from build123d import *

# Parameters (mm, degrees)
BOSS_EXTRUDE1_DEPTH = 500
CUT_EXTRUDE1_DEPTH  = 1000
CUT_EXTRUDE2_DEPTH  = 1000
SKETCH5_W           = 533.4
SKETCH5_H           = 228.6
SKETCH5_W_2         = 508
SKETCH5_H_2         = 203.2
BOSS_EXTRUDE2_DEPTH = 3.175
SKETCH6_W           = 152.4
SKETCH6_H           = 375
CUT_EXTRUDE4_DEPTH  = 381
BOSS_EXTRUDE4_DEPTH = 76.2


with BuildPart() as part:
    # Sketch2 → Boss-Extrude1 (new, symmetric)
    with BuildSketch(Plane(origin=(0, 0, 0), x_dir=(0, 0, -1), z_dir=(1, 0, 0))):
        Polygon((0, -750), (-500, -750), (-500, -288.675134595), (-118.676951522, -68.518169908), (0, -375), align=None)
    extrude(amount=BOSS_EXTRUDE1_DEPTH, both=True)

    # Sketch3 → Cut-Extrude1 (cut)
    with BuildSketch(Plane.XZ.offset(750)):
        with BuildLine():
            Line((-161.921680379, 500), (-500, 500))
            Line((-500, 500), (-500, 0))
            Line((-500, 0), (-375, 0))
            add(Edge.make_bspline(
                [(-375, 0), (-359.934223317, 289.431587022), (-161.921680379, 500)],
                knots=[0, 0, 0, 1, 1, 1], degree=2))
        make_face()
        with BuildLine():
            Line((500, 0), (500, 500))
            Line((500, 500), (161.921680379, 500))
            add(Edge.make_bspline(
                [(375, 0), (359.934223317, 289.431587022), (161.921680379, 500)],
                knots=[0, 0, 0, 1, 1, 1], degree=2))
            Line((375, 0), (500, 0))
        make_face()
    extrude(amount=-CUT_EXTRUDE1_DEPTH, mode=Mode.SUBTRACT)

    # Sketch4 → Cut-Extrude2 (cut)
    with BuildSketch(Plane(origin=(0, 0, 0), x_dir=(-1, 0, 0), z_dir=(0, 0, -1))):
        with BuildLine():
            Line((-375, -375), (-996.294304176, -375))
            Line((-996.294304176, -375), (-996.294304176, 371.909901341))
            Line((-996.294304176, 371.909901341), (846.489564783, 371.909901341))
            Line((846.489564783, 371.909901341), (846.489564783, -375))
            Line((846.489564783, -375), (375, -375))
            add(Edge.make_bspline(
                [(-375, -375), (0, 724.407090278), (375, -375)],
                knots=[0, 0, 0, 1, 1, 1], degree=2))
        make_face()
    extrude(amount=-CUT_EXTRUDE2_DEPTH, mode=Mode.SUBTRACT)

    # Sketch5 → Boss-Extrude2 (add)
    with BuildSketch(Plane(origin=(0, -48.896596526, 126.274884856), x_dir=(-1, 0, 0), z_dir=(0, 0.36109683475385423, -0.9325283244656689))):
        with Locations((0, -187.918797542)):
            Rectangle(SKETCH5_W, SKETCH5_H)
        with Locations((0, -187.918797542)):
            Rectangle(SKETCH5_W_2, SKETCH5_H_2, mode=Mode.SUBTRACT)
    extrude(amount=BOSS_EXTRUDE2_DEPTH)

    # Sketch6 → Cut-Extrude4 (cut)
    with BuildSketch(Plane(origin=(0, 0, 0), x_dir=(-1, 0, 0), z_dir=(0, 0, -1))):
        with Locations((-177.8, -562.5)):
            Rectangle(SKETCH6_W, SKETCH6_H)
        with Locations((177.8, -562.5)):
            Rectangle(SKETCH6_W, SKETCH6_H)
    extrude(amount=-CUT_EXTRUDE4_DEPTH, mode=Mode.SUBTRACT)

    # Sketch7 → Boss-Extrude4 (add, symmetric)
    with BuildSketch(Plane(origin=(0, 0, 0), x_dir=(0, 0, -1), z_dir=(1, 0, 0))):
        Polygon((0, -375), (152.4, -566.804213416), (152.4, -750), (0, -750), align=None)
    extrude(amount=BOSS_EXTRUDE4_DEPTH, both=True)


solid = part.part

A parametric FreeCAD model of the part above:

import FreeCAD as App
import Part
import Sketcher
from FreeCAD import Vector
Q = App.Units.Quantity

doc = App.newDocument("Part")
body = doc.addObject("PartDesign::Body", "Body")

sketch1 = doc.addObject("Sketcher::SketchObject", "Sketch")
body.addObject(sketch1)
sketch1.AttachmentSupport = (doc.YZ_Plane, [""])
sketch1.MapMode = "FlatFace"
sketch1.addGeometry([
    Part.LineSegment(Vector(-750, 500, 0), Vector(-750, 0, 0)),
    Part.LineSegment(Vector(-750, 0, 0), Vector(-375, 0, 0)),
    Part.LineSegment(Vector(-375, 0, 0), Vector(-69, 119, 0)),
    Part.LineSegment(Vector(-69, 119, 0), Vector(-289, 500, 0)),
    Part.LineSegment(Vector(-289, 500, 0), Vector(-750, 500, 0)),
], False)
sketch1.addConstraint([
    Sketcher.Constraint("Coincident", 0, 2, 1, 1),
    Sketcher.Constraint("Coincident", 1, 2, 2, 1),
    Sketcher.Constraint("Coincident", 2, 2, 3, 1),
    Sketcher.Constraint("Coincident", 3, 2, 4, 1),
    Sketcher.Constraint("Coincident", 4, 2, 0, 1),
    Sketcher.Constraint("Vertical", 0),
    Sketcher.Constraint("Horizontal", 1),
    Sketcher.Constraint("Horizontal", 4),
    Sketcher.Constraint("PointOnObject", 0, 2, -1),
    Sketcher.Constraint("Angle", 3, Q("120 deg")),
    Sketcher.Constraint("DistanceX", 1, 1, 1, 2, 375.0),
    Sketcher.Constraint("DistanceY", 0, 2, 0, 1, 500.0),
    Sketcher.Constraint("DistanceX", 0, 2, -1, 1, 750.0),
    Sketcher.Constraint("Distance", 2, 328.656859),
    Sketcher.Constraint("Distance", 3, 440.313929),
])
pad1 = doc.addObject("PartDesign::Pad", "Pad")
body.addObject(pad1)
pad1.Profile = sketch1
pad1.Length = 1000
pad1.Midplane = True

sketch2 = doc.addObject("Sketcher::SketchObject", "Sketch001")
body.addObject(sketch2)
sketch2.AttachmentSupport = (doc.XZ_Plane, [""])
sketch2.MapMode = "FlatFace"
sketch2.AttachmentOffset = App.Placement(Vector(0, 0, 750), App.Rotation())
sketch2.addGeometry([
    Part.LineSegment(Vector(-161.92168, 500, 0), Vector(-500, 500, 0)),
    Part.LineSegment(Vector(-500, 500, 0), Vector(-500, 0, 0)),
    Part.LineSegment(Vector(-500, 0, 0), Vector(-375, 0, 0)),
    Part.BSplineCurve([Vector(-375, 0, 0), Vector(-359.934223, 289.431587, 0), Vector(-161.92168, 500, 0)], [3, 3], [0, 1], False, 2, [1, 1, 1], False),
    Part.LineSegment(Vector(500, 0, 0), Vector(500, 500, 0)),
    Part.LineSegment(Vector(500, 500, 0), Vector(161.92168, 500, 0)),
    Part.BSplineCurve([Vector(375, 0, 0), Vector(359.934223, 289.431587, 0), Vector(161.92168, 500, 0)], [3, 3], [0, 1], False, 2, [1, 1, 1], False),
    Part.LineSegment(Vector(375, 0, 0), Vector(500, 0, 0)),
], False)
sketch2.addConstraint([
    Sketcher.Constraint("Block", 3),
    Sketcher.Constraint("Block", 6),
    Sketcher.Constraint("Coincident", 0, 2, 1, 1),
    Sketcher.Constraint("Coincident", 1, 2, 2, 1),
    Sketcher.Constraint("Coincident", 2, 2, 3, 1),
    Sketcher.Constraint("Coincident", 3, 2, 0, 1),
    Sketcher.Constraint("Coincident", 4, 2, 5, 1),
    Sketcher.Constraint("Coincident", 5, 2, 6, 2),
    Sketcher.Constraint("Coincident", 6, 1, 7, 1),
    Sketcher.Constraint("Coincident", 7, 2, 4, 1),
    Sketcher.Constraint("Horizontal", 0),
    Sketcher.Constraint("Vertical", 1),
    Sketcher.Constraint("Horizontal", 2),
    Sketcher.Constraint("Vertical", 4),
    Sketcher.Constraint("Horizontal", 5),
    Sketcher.Constraint("Horizontal", 7),
    Sketcher.Constraint("Equal", 0, 5),
    Sketcher.Constraint("DistanceX", 2, 1, 2, 2, 125.0),
])
pocket1 = doc.addObject("PartDesign::Pocket", "Pocket")
body.addObject(pocket1)
pocket1.Profile = sketch2
pocket1.Length = 1000

sketch3 = doc.addObject("Sketcher::SketchObject", "Sketch002")
body.addObject(sketch3)
sketch3.AttachmentSupport = (doc.XY_Plane, [""])
sketch3.MapMode = "FlatFace"
sketch3.addGeometry([
    Part.LineSegment(Vector(996.294304, -375, 0), Vector(375, -375, 0)),
    Part.BSplineCurve([Vector(375, -375, 0), Vector(0, 724.40709, 0), Vector(-375, -375, 0)], [3, 3], [0, 1], False, 2, [1, 1, 1], False),
    Part.LineSegment(Vector(-375, -375, 0), Vector(-846.489565, -375, 0)),
    Part.LineSegment(Vector(-846.489565, -375, 0), Vector(-846.489565, 371.909901, 0)),
    Part.LineSegment(Vector(-846.489565, 371.909901, 0), Vector(996.294304, 371.909901, 0)),
    Part.LineSegment(Vector(996.294304, 371.909901, 0), Vector(996.294304, -375, 0)),
], False)
sketch3.addConstraint([
    Sketcher.Constraint("Block", 1),
    Sketcher.Constraint("Coincident", 0, 2, 1, 1),
    Sketcher.Constraint("Coincident", 1, 2, 2, 1),
    Sketcher.Constraint("Coincident", 2, 2, 3, 1),
    Sketcher.Constraint("Coincident", 3, 2, 4, 1),
    Sketcher.Constraint("Coincident", 4, 2, 5, 1),
    Sketcher.Constraint("Coincident", 5, 2, 0, 1),
    Sketcher.Constraint("Horizontal", 0),
    Sketcher.Constraint("Horizontal", 2),
    Sketcher.Constraint("Vertical", 3),
    Sketcher.Constraint("Horizontal", 4),
    Sketcher.Constraint("Vertical", 5),
    Sketcher.Constraint("DistanceY", 3, 1, 3, 2, 746.909901),
    Sketcher.Constraint("DistanceX", 4, 1, 4, 2, 1842.783869),
    Sketcher.Constraint("DistanceX", 0, 2, 0, 1, 621.294304),
])
pocket2 = doc.addObject("PartDesign::Pocket", "Pocket001")
body.addObject(pocket2)
pocket2.Profile = sketch3
pocket2.Length = 1000
pocket2.Reversed = True

sketch4 = doc.addObject("Sketcher::SketchObject", "Sketch003")
body.addObject(sketch4)
sketch4.Placement = App.Placement(Vector(0, -48.896597, 126.274885), App.Rotation(Vector(-1, 0, 0), Vector(0, 0.932528324, 0.361096835), Vector(0, 0.361096835, -0.932528324), "ZXY"))
sketch4.addGeometry([
    Part.LineSegment(Vector(-267, -74, 0), Vector(-267, -302, 0)),
    Part.LineSegment(Vector(-267, -302, 0), Vector(267, -302, 0)),
    Part.LineSegment(Vector(267, -302, 0), Vector(267, -74, 0)),
    Part.LineSegment(Vector(267, -74, 0), Vector(-267, -74, 0)),
    Part.LineSegment(Vector(254, -290, 0), Vector(-254, -290, 0)),
    Part.LineSegment(Vector(-254, -290, 0), Vector(-254, -86, 0)),
    Part.LineSegment(Vector(-254, -86, 0), Vector(254, -86, 0)),
    Part.LineSegment(Vector(254, -86, 0), Vector(254, -290, 0)),
], False)
sketch4.addConstraint([
    Sketcher.Constraint("Coincident", 0, 2, 1, 1),
    Sketcher.Constraint("Coincident", 1, 2, 2, 1),
    Sketcher.Constraint("Coincident", 2, 2, 3, 1),
    Sketcher.Constraint("Coincident", 3, 2, 0, 1),
    Sketcher.Constraint("Coincident", 4, 2, 5, 1),
    Sketcher.Constraint("Coincident", 5, 2, 6, 1),
    Sketcher.Constraint("Coincident", 6, 2, 7, 1),
    Sketcher.Constraint("Coincident", 7, 2, 4, 1),
    Sketcher.Constraint("Vertical", 0),
    Sketcher.Constraint("Horizontal", 1),
    Sketcher.Constraint("Vertical", 2),
    Sketcher.Constraint("Horizontal", 3),
    Sketcher.Constraint("Horizontal", 4),
    Sketcher.Constraint("Vertical", 5),
    Sketcher.Constraint("Horizontal", 6),
    Sketcher.Constraint("Vertical", 7),
    Sketcher.Constraint("DistanceX", 1, 1, 1, 2, Q("21 in")),
    Sketcher.Constraint("DistanceX", 4, 2, 4, 1, Q("20 in")),
    Sketcher.Constraint("DistanceY", 0, 2, 0, 1, Q("9 in")),
    Sketcher.Constraint("DistanceY", 5, 1, 5, 2, Q("8 in")),
    Sketcher.Constraint("DistanceX", 4, 2, -1, 1, Q("10 in")),
    Sketcher.Constraint("DistanceX", 0, 2, -1, 1, Q("10.5 in")),
    Sketcher.Constraint("DistanceY", 0, 2, 4, 2, Q("0.5 in")),
    Sketcher.Constraint("DistanceY", 0, 2, -1, 1, 302.218797),
])
pad2 = doc.addObject("PartDesign::Pad", "Pad001")
body.addObject(pad2)
pad2.Profile = sketch4
pad2.Length = Q("0.125 in")

sketch5 = doc.addObject("Sketcher::SketchObject", "Sketch004")
body.addObject(sketch5)
sketch5.AttachmentSupport = (doc.XY_Plane, [""])
sketch5.MapMode = "FlatFace"
sketch5.addGeometry([
    Part.LineSegment(Vector(254, -375, 0), Vector(254, -750, 0)),
    Part.LineSegment(Vector(254, -750, 0), Vector(102, -750, 0)),
    Part.LineSegment(Vector(102, -750, 0), Vector(102, -375, 0)),
    Part.LineSegment(Vector(102, -375, 0), Vector(254, -375, 0)),
    Part.LineSegment(Vector(-102, -375, 0), Vector(-102, -750, 0)),
    Part.LineSegment(Vector(-102, -750, 0), Vector(-254, -750, 0)),
    Part.LineSegment(Vector(-254, -750, 0), Vector(-254, -375, 0)),
    Part.LineSegment(Vector(-254, -375, 0), Vector(-102, -375, 0)),
], False)
sketch5.addConstraint([
    Sketcher.Constraint("Coincident", 0, 2, 1, 1),
    Sketcher.Constraint("Coincident", 1, 2, 2, 1),
    Sketcher.Constraint("Coincident", 2, 2, 3, 1),
    Sketcher.Constraint("Coincident", 3, 2, 0, 1),
    Sketcher.Constraint("Coincident", 4, 2, 5, 1),
    Sketcher.Constraint("Coincident", 5, 2, 6, 1),
    Sketcher.Constraint("Coincident", 6, 2, 7, 1),
    Sketcher.Constraint("Coincident", 7, 2, 4, 1),
    Sketcher.Constraint("Vertical", 0),
    Sketcher.Constraint("Horizontal", 1),
    Sketcher.Constraint("Vertical", 2),
    Sketcher.Constraint("Horizontal", 3),
    Sketcher.Constraint("Vertical", 4),
    Sketcher.Constraint("Horizontal", 5),
    Sketcher.Constraint("Vertical", 6),
    Sketcher.Constraint("Horizontal", 7),
    Sketcher.Constraint("Symmetric", 1, 2, 4, 2, -2),
    Sketcher.Constraint("Symmetric", 3, 2, 6, 2, -2),
    Sketcher.Constraint("DistanceX", 1, 2, 1, 1, Q("6 in")),
    Sketcher.Constraint("DistanceX", -1, 1, 0, 2, Q("10 in")),
    Sketcher.Constraint("DistanceY", 0, 2, 0, 1, 375.0),
    Sketcher.Constraint("DistanceY", 0, 2, -1, 1, 750.0),
])
pocket3 = doc.addObject("PartDesign::Pocket", "Pocket002")
body.addObject(pocket3)
pocket3.Profile = sketch5
pocket3.Length = Q("15 in")
pocket3.Reversed = True

sketch6 = doc.addObject("Sketcher::SketchObject", "Sketch005")
body.addObject(sketch6)
sketch6.AttachmentSupport = (doc.YZ_Plane, [""])
sketch6.MapMode = "FlatFace"
sketch6.addGeometry([
    Part.LineSegment(Vector(-567, -152, 0), Vector(-375, 0, 0)),
    Part.LineSegment(Vector(-375, 0, 0), Vector(-750, 0, 0)),
    Part.LineSegment(Vector(-750, 0, 0), Vector(-750, -152, 0)),
    Part.LineSegment(Vector(-750, -152, 0), Vector(-567, -152, 0)),
], False)
sketch6.addConstraint([
    Sketcher.Constraint("Coincident", 0, 2, 1, 1),
    Sketcher.Constraint("Coincident", 1, 2, 2, 1),
    Sketcher.Constraint("Coincident", 2, 2, 3, 1),
    Sketcher.Constraint("Coincident", 3, 2, 0, 1),
    Sketcher.Constraint("Horizontal", 1),
    Sketcher.Constraint("Vertical", 2),
    Sketcher.Constraint("Horizontal", 3),
    Sketcher.Constraint("PointOnObject", 0, 2, -1),
    Sketcher.Constraint("DistanceY", 2, 2, 2, 1, Q("6 in")),
    Sketcher.Constraint("DistanceX", 1, 2, 1, 1, 375.0),
    Sketcher.Constraint("DistanceX", 0, 2, -1, 1, 375.0),
    Sketcher.Constraint("DistanceX", 3, 1, 3, 2, 183.195787),
])
pad3 = doc.addObject("PartDesign::Pad", "Pad002")
body.addObject(pad3)
pad3.Profile = sketch6
pad3.Length = Q("6 in")
pad3.Midplane = True

doc.recompute()
